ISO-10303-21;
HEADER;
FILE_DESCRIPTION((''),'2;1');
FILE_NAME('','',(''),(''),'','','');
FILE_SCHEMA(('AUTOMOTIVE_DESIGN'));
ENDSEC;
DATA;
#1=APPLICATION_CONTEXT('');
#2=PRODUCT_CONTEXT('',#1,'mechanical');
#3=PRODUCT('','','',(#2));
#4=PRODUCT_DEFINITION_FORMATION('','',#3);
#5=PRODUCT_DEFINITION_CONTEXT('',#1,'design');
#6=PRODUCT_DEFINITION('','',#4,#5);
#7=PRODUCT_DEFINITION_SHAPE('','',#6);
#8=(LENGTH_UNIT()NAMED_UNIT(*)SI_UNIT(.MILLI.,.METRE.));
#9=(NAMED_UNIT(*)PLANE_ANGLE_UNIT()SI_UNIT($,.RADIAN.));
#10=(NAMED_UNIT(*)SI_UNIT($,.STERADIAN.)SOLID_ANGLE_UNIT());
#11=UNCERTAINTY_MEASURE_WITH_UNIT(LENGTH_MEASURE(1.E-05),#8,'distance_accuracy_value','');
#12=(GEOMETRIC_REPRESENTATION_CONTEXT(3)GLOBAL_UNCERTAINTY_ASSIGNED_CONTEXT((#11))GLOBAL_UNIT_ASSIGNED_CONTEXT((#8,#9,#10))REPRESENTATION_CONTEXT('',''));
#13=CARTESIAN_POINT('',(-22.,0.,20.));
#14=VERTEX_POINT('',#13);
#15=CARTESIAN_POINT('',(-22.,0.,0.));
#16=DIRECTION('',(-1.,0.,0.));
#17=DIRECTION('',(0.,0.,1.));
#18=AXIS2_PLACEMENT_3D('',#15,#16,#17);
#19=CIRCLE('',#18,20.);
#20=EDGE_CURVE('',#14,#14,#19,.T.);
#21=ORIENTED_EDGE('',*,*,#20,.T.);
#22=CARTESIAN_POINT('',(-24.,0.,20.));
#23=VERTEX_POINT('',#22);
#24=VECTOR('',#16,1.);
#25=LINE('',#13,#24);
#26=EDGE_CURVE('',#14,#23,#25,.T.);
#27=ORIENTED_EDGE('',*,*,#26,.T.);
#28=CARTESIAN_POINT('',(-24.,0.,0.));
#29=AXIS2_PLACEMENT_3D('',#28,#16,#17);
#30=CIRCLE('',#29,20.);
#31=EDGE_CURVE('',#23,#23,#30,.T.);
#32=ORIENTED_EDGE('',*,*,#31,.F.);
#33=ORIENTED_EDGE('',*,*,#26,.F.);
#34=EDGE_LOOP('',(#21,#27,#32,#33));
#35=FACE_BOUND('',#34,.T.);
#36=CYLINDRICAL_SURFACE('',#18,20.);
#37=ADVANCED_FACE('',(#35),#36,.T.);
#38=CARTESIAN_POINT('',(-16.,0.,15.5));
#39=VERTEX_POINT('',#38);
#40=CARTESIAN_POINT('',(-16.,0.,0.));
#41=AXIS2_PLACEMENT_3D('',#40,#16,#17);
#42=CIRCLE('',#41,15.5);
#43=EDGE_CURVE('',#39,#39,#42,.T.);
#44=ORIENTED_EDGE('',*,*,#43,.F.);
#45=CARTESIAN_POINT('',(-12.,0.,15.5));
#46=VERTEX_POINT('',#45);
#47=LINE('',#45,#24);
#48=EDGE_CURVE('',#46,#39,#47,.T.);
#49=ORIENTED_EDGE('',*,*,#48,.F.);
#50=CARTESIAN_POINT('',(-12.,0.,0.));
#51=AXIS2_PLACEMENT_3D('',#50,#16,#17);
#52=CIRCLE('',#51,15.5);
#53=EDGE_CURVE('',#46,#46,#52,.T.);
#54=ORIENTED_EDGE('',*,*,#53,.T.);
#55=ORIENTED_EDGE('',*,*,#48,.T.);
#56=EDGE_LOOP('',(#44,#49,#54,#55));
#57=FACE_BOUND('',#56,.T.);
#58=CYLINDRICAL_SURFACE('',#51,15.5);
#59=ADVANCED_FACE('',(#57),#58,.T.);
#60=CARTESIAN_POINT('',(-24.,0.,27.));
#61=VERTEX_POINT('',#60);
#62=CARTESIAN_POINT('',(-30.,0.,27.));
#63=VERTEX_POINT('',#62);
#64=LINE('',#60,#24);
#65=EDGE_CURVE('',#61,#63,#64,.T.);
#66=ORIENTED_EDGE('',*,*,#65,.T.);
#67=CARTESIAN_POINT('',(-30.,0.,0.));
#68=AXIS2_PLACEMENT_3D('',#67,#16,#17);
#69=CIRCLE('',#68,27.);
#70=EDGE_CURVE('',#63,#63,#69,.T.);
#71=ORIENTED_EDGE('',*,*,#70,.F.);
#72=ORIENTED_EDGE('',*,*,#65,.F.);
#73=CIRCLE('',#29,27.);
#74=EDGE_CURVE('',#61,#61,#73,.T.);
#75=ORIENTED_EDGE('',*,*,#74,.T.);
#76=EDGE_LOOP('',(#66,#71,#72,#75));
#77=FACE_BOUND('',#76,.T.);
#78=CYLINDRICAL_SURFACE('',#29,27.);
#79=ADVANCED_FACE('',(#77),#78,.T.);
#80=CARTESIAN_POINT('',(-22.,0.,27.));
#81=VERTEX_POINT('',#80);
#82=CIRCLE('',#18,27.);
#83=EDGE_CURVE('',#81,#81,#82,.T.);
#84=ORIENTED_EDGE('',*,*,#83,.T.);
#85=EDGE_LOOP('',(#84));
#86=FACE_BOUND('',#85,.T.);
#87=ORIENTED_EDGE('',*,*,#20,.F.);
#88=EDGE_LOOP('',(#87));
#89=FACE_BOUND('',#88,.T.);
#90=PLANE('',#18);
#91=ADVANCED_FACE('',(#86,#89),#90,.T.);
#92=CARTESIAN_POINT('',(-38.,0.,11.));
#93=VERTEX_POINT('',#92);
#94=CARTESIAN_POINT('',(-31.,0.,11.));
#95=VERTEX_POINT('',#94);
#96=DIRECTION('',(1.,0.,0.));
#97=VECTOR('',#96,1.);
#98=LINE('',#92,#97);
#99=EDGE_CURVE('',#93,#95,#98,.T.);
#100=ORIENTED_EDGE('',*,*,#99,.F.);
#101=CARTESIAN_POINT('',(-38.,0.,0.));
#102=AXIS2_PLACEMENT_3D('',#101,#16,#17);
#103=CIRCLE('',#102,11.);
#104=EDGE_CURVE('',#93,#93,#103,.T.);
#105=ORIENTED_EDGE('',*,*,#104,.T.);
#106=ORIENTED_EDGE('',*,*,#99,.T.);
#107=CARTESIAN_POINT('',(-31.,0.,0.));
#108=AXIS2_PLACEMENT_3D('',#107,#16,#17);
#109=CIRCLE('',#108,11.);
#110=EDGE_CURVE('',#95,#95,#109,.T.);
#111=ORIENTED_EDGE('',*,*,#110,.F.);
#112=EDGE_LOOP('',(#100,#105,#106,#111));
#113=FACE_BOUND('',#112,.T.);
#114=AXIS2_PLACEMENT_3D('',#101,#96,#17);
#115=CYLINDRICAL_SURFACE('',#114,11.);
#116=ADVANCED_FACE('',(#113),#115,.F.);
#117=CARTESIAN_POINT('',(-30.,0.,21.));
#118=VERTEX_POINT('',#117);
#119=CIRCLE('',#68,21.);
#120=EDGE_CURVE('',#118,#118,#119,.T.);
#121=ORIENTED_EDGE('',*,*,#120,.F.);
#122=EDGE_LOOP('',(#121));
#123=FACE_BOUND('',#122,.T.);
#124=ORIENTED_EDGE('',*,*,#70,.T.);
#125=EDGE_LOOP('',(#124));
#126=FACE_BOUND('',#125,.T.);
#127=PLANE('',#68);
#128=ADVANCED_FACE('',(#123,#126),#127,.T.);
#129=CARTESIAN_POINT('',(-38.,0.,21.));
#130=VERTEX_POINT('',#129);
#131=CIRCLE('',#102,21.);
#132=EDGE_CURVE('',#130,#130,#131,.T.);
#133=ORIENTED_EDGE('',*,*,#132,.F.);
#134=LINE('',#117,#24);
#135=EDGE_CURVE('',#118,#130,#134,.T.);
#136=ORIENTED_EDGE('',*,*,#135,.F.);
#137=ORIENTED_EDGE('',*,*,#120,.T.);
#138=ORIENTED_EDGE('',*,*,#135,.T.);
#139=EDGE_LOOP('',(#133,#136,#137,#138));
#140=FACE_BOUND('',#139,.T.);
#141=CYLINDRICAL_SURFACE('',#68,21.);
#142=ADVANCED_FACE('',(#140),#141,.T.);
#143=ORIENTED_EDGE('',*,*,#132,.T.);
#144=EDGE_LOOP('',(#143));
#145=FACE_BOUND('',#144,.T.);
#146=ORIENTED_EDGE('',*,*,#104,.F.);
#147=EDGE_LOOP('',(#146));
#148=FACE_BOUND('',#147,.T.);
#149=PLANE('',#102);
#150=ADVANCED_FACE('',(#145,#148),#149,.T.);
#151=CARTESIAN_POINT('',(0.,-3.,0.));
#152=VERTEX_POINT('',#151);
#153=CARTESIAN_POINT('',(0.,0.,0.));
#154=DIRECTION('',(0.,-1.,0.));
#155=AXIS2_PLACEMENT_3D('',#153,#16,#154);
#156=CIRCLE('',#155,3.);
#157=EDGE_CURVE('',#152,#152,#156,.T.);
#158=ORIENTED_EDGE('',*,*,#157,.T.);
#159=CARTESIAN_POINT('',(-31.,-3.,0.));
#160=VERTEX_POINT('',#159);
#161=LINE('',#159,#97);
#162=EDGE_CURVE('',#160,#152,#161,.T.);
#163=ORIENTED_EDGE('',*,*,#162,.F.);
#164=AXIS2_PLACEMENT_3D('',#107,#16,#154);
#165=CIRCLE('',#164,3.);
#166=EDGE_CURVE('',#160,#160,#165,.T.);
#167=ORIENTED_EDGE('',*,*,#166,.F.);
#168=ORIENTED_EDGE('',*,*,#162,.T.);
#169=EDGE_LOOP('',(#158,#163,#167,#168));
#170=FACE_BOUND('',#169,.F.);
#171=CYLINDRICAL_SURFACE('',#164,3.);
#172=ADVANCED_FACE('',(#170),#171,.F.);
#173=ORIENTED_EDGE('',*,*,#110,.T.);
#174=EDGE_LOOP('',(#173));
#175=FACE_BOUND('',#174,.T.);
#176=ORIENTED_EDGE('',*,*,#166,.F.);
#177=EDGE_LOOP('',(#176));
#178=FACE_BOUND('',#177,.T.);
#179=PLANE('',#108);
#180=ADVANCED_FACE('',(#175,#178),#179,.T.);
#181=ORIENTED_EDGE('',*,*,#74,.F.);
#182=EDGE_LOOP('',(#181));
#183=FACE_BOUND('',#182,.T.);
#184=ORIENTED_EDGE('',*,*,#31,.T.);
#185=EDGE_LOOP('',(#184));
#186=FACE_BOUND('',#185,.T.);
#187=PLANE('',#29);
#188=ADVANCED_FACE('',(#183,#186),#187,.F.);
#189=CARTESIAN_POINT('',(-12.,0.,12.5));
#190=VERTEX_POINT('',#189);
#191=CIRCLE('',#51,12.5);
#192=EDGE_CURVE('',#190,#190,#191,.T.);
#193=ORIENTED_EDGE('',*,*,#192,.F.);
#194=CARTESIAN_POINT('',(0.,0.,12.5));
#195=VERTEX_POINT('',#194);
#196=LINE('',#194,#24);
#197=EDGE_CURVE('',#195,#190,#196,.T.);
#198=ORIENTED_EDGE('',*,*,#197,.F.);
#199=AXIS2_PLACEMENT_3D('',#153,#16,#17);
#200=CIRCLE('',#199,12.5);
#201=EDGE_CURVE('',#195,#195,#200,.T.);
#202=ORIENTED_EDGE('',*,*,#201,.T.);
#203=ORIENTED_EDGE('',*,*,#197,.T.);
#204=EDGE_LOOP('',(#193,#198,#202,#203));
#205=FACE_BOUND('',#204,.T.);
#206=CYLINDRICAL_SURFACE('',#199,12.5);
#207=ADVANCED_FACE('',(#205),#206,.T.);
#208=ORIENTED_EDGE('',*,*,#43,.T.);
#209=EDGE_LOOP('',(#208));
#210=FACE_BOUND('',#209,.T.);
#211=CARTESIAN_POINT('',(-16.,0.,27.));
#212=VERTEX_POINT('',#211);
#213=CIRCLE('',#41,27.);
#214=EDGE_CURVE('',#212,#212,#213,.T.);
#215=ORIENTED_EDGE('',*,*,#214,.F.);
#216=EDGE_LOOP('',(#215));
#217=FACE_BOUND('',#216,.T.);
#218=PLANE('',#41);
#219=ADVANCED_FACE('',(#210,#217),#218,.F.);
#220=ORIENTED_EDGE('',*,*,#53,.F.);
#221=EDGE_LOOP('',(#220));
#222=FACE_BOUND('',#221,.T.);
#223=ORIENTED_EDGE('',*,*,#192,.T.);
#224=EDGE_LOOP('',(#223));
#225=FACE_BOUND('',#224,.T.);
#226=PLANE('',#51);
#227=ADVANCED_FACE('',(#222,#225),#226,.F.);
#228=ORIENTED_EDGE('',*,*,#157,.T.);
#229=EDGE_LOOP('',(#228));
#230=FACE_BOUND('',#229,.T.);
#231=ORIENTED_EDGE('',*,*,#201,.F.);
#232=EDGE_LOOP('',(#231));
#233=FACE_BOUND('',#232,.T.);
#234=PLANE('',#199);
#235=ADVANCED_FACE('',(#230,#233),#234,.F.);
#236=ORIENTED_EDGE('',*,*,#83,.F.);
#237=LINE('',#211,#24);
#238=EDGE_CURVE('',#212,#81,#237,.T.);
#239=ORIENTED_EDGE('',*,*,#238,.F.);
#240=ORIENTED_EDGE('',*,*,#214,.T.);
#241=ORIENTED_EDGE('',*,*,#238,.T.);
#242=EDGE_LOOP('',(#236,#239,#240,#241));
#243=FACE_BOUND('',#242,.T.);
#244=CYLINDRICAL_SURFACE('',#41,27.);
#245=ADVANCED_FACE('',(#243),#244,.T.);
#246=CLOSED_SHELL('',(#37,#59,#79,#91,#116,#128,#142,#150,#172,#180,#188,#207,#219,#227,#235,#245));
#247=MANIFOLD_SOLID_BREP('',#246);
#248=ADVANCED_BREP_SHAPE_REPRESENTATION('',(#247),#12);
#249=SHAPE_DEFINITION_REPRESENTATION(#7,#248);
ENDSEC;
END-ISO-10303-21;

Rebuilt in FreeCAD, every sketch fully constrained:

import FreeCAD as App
import Part
import Sketcher
from FreeCAD import Vector

doc = App.newDocument("Part")
body = doc.addObject("PartDesign::Body", "Body")

# Sketch on XZ plane
sketch1 = doc.addObject("Sketcher::SketchObject", "Sketch")
body.addObject(sketch1)
sketch1.AttachmentSupport = (doc.XZ_Plane, [""])
sketch1.MapMode = "FlatFace"
sketch1.addGeometry([
    Part.LineSegment(Vector(-31, 11, 0), Vector(-31, 0, 0)),  # 0
    Part.LineSegment(Vector(-31, 0, 0), Vector(0, 0, 0)),  # 1
    Part.LineSegment(Vector(0, 0, 0), Vector(0, 12.5, 0)),  # 2
    Part.LineSegment(Vector(0, 12.5, 0), Vector(-12, 12.5, 0)),  # 3
    Part.LineSegment(Vector(-12, 12.5, 0), Vector(-12, 15.5, 0)),  # 4
    Part.LineSegment(Vector(-12, 15.5, 0), Vector(-16, 15.5, 0)),  # 5
    Part.LineSegment(Vector(-16, 15.5, 0), Vector(-16, 27, 0)),  # 6
    Part.LineSegment(Vector(-16, 27, 0), Vector(-22, 27, 0)),  # 7
    Part.LineSegment(Vector(-22, 27, 0), Vector(-22, 20, 0)),  # 8
    Part.LineSegment(Vector(-22, 20, 0), Vector(-24, 20, 0)),  # 9
    Part.LineSegment(Vector(-24, 20, 0), Vector(-24, 27, 0)),  # 10
    Part.LineSegment(Vector(-24, 27, 0), Vector(-30, 27, 0)),  # 11
    Part.LineSegment(Vector(-30, 27, 0), Vector(-30, 21, 0)),  # 12
    Part.LineSegment(Vector(-30, 21, 0), Vector(-38, 21, 0)),  # 13
    Part.LineSegment(Vector(-38, 21, 0), Vector(-38, 11, 0)),  # 14
    Part.LineSegment(Vector(-38, 11, 0), Vector(-31, 11, 0)),  # 15
], False)
sketch1.addConstraint([
    Sketcher.Constraint("Coincident", 0, 2, 1, 1),
    Sketcher.Constraint("Coincident", 1, 2, 2, 1),
    Sketcher.Constraint("Coincident", 2, 2, 3, 1),
    Sketcher.Constraint("Coincident", 3, 2, 4, 1),
    Sketcher.Constraint("Coincident", 4, 2, 5, 1),
    Sketcher.Constraint("Coincident", 5, 2, 6, 1),
    Sketcher.Constraint("Coincident", 6, 2, 7, 1),
    Sketcher.Constraint("Coincident", 7, 2, 8, 1),
    Sketcher.Constraint("Coincident", 8, 2, 9, 1),
    Sketcher.Constraint("Coincident", 9, 2, 10, 1),
    Sketcher.Constraint("Coincident", 10, 2, 11, 1),
    Sketcher.Constraint("Coincident", 11, 2, 12, 1),
    Sketcher.Constraint("Coincident", 12, 2, 13, 1),
    Sketcher.Constraint("Coincident", 13, 2, 14, 1),
    Sketcher.Constraint("Coincident", 14, 2, 15, 1),
    Sketcher.Constraint("Coincident", 15, 2, 0, 1),
    Sketcher.Constraint("Vertical", 0),
    Sketcher.Constraint("Horizontal", 1),
    Sketcher.Constraint("Vertical", 2),
    Sketcher.Constraint("Horizontal", 3),
    Sketcher.Constraint("Vertical", 4),
    Sketcher.Constraint("Horizontal", 5),
    Sketcher.Constraint("Vertical", 6),
    Sketcher.Constraint("Horizontal", 7),
    Sketcher.Constraint("Vertical", 8),
    Sketcher.Constraint("Horizontal", 9),
    Sketcher.Constraint("Vertical", 10),
    Sketcher.Constraint("Horizontal", 11),
    Sketcher.Constraint("Vertical", 12),
    Sketcher.Constraint("Horizontal", 13),
    Sketcher.Constraint("Vertical", 14),
    Sketcher.Constraint("Horizontal", 15),
    Sketcher.Constraint("Coincident", 1, 2, -1, 1),
    Sketcher.Constraint("Horizontal", 7, 2, 10, 2),
    Sketcher.Constraint("Equal", 7, 11),
    Sketcher.Constraint("Equal", 15, 8),
    Sketcher.Constraint("Equal", 11, 12),
    Sketcher.Constraint("DistanceX", 1, 1, 1, 2, 31.0),
    Sketcher.Constraint("DistanceX", 3, 2, 3, 1, 12.0),
    Sketcher.Constraint("DistanceX", 5, 2, 5, 1, 4.0),
    Sketcher.Constraint("DistanceX", 7, 2, 7, 1, 6.0),
    Sketcher.Constraint("DistanceX", 9, 2, 9, 1, 2.0),
    Sketcher.Constraint("DistanceX", 13, 2, 13, 1, 8.0),
    Sketcher.Constraint("DistanceY", 0, 2, 0, 1, 11.0),
    Sketcher.Constraint("DistanceY", 4, 1, 4, 2, 3.0),
    Sketcher.Constraint("DistanceY", 14, 2, 14, 1, 10.0),
    Sketcher.Constraint("DistanceY", 2, 1, 2, 2, 12.5),
])
revolution = doc.addObject("PartDesign::Revolution", "Revolution")
body.addObject(revolution)
revolution.Profile = sketch1
revolution.ReferenceAxis = (sketch1, ["H_Axis"])
revolution.Angle = 360

# Sketch on YZ plane
sketch2 = doc.addObject("Sketcher::SketchObject", "Sketch001")
body.addObject(sketch2)
sketch2.AttachmentSupport = (doc.YZ_Plane, [""])
sketch2.MapMode = "FlatFace"
sketch2.AttachmentOffset = App.Placement(Vector(0, 0, -31), App.Rotation())
sketch2.addGeometry(Part.Circle(Vector(0, 0, 0), Vector(0, 0, 1), 3), False)
sketch2.addConstraint([
    Sketcher.Constraint("Coincident", 0, 3, -1, 1),
    Sketcher.Constraint("Diameter", 0, 6.0),
])
pocket1 = doc.addObject("PartDesign::Pocket", "Pocket")
body.addObject(pocket1)
pocket1.Profile = sketch2
pocket1.Type = "ThroughAll"
pocket1.Reversed = True

doc.recompute()
